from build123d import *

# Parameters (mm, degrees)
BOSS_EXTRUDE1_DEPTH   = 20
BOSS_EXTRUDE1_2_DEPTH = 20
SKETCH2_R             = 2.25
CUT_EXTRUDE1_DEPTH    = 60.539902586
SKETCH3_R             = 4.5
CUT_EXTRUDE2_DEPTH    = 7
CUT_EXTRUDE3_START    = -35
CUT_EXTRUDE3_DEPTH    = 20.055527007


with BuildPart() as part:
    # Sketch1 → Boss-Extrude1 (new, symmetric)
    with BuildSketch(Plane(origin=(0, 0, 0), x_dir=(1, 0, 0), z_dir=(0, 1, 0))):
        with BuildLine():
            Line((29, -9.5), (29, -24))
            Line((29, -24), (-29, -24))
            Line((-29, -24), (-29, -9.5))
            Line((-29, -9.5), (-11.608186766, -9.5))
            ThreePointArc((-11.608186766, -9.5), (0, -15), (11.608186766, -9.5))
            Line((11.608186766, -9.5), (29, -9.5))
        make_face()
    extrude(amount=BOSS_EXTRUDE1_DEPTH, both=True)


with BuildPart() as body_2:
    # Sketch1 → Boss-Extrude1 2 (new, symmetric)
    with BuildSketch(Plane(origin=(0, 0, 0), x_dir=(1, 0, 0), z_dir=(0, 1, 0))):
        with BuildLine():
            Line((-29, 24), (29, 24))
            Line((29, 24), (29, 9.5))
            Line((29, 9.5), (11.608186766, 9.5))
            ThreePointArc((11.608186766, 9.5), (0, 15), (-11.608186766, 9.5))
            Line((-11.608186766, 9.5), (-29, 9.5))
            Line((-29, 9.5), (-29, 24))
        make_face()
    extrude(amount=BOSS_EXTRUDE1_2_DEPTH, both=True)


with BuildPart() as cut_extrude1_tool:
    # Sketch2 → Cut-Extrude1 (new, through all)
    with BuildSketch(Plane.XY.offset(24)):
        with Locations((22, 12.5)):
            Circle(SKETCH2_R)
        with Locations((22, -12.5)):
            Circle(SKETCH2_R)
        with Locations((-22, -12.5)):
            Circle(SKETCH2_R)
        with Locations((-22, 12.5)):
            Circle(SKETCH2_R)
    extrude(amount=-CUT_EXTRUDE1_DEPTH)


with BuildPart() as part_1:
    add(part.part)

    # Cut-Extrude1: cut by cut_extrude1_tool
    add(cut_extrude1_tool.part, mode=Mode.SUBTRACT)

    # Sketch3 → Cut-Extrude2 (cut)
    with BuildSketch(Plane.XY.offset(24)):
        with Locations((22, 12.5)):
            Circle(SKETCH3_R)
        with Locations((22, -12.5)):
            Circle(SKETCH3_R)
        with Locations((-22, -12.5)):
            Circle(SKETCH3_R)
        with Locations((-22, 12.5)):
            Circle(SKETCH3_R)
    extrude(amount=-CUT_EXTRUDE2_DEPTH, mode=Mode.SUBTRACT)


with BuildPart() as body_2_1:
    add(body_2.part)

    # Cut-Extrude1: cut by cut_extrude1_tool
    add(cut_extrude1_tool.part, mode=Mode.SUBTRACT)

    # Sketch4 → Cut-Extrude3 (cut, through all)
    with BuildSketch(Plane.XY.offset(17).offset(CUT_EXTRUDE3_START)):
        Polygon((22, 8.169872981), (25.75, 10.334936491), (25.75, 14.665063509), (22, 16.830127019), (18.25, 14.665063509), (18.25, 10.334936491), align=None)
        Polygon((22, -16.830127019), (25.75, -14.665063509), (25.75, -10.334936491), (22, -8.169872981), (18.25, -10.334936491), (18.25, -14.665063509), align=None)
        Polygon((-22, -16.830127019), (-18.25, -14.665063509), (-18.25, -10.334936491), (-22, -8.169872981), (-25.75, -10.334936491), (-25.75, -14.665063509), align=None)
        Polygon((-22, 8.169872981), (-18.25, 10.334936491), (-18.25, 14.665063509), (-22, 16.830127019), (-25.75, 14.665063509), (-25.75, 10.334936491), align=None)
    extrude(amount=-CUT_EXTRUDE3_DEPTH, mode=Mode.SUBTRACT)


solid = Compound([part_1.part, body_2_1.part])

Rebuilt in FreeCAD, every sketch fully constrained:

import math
import FreeCAD as App
import Part
import Sketcher

V = App.Vector
Q = App.Units.Quantity

doc = App.newDocument("Part")
params = doc.addObject("Spreadsheet::Sheet", "Params")
for row, (alias, value) in enumerate([
    ("sketch1_radius", "15 mm"),
    ("sketch1_width", "58 mm"),
    ("sketch1_height", "14.5 mm"),
    ("pad1_length", "40 mm"),
    ("sketch2_radius", "15 mm"),
    ("sketch2_width", "58 mm"),
    ("sketch2_height", "14.5 mm"),
    ("pad2_length", "40 mm"),
    ("sketch3_diameter", "4.5 mm"),
    ("pad3_length", "60.539903 mm"),
    ("sketch4_diameter", "9 mm"),
    ("pocket1_length", "7 mm"),
], start=1):
    params.set(f"A{row}", alias)
    params.set(f"B{row}", "=" + value)
    params.setAlias(f"B{row}", alias)

body = doc.addObject("PartDesign::Body", "Body")

# Sketch on XZ plane
sketch1 = body.newObject("Sketcher::SketchObject", "Sketch")
sketch1.AttachmentSupport = (doc.getObject("XZ_Plane"), [""])
sketch1.MapMode = "FlatFace"
sketch1.addGeometry(Part.LineSegment(V(29, 24, 0), V(29, 10, 0)), False)
sketch1.addGeometry(Part.LineSegment(V(29, 10, 0), V(12, 10, 0)), False)
sketch1.addGeometry(Part.ArcOfCircle(Part.Circle(V(0, 0, 0), V(0, 0, 1), 15), math.radians(39), math.radians(141)), False)
sketch1.addGeometry(Part.LineSegment(V(-12, 10, 0), V(-29, 10, 0)), False)
sketch1.addGeometry(Part.LineSegment(V(-29, 10, 0), V(-29, 24, 0)), False)
sketch1.addGeometry(Part.LineSegment(V(-29, 24, 0), V(29, 24, 0)), False)
sketch1.addConstraint(Sketcher.Constraint("Coincident", 0, 2, 1, 1))
sketch1.addConstraint(Sketcher.Constraint("Coincident", 1, 2, 2, 1))
sketch1.addConstraint(Sketcher.Constraint("Coincident", 2, 2, 3, 1))
sketch1.addConstraint(Sketcher.Constraint("Coincident", 3, 2, 4, 1))
sketch1.addConstraint(Sketcher.Constraint("Coincident", 4, 2, 5, 1))
sketch1.addConstraint(Sketcher.Constraint("Coincident", 5, 2, 0, 1))
sketch1.addConstraint(Sketcher.Constraint("Vertical", 0))
sketch1.addConstraint(Sketcher.Constraint("Horizontal", 1))
sketch1.addConstraint(Sketcher.Constraint("Horizontal", 3))
sketch1.addConstraint(Sketcher.Constraint("Vertical", 4))
sketch1.addConstraint(Sketcher.Constraint("Horizontal", 5))
sketch1.addConstraint(Sketcher.Constraint("Coincident", 2, 3, -1, 1))
sketch1.addConstraint(Sketcher.Constraint("Symmetric", 0, 2, 3, 2, -2))
sketch1.addConstraint(Sketcher.Constraint("Radius", 2, Q("15 mm")))
sketch1.addConstraint(Sketcher.Constraint("DistanceX", 5, 1, 5, 2, Q("58 mm")))
sketch1.addConstraint(Sketcher.Constraint("DistanceY", 0, 2, 0, 1, Q("14.5 mm")))
sketch1.addConstraint(Sketcher.Constraint("DistanceY", -1, 1, 4, 2, Q("24 mm")))
sketch1.setExpression("Constraints[13]", "Params.sketch1_radius")
sketch1.setExpression("Constraints[14]", "Params.sketch1_width")
sketch1.setExpression("Constraints[15]", "Params.sketch1_height")
pad1 = body.newObject("PartDesign::Pad", "Pad")
pad1.Profile = sketch1
pad1.setExpression("Length", "Params.pad1_length")
pad1.Midplane = True
body2 = doc.addObject("PartDesign::Body", "Body001")

# Sketch on XZ plane
sketch2 = body2.newObject("Sketcher::SketchObject", "Sketch001")
sketch2.AttachmentSupport = (doc.getObject("XZ_Plane001"), [""])
sketch2.MapMode = "FlatFace"
sketch2.addGeometry(Part.LineSegment(V(29, -24, 0), V(-29, -24, 0)), False)
sketch2.addGeometry(Part.LineSegment(V(-29, -24, 0), V(-29, -10, 0)), False)
sketch2.addGeometry(Part.LineSegment(V(-29, -10, 0), V(-12, -10, 0)), False)
sketch2.addGeometry(Part.ArcOfCircle(Part.Circle(V(0, 0, 0), V(0, 0, 1), 15), math.radians(-141), math.radians(-39)), False)
sketch2.addGeometry(Part.LineSegment(V(12, -10, 0), V(29, -10, 0)), False)
sketch2.addGeometry(Part.LineSegment(V(29, -10, 0), V(29, -24, 0)), False)
sketch2.addConstraint(Sketcher.Constraint("Coincident", 0, 2, 1, 1))
sketch2.addConstraint(Sketcher.Constraint("Coincident", 1, 2, 2, 1))
sketch2.addConstraint(Sketcher.Constraint("Coincident", 2, 2, 3, 1))
sketch2.addConstraint(Sketcher.Constraint("Coincident", 3, 2, 4, 1))
sketch2.addConstraint(Sketcher.Constraint("Coincident", 4, 2, 5, 1))
sketch2.addConstraint(Sketcher.Constraint("Coincident", 5, 2, 0, 1))
sketch2.addConstraint(Sketcher.Constraint("Horizontal", 0))
sketch2.addConstraint(Sketcher.Constraint("Vertical", 1))
sketch2.addConstraint(Sketcher.Constraint("Horizontal", 2))
sketch2.addConstraint(Sketcher.Constraint("Horizontal", 4))
sketch2.addConstraint(Sketcher.Constraint("Vertical", 5))
sketch2.addConstraint(Sketcher.Constraint("Coincident", 3, 3, -1, 1))
sketch2.addConstraint(Sketcher.Constraint("Symmetric", 1, 2, 4, 2, -2))
sketch2.addConstraint(Sketcher.Constraint("Radius", 3, Q("15 mm")))
sketch2.addConstraint(Sketcher.Constraint("DistanceX", 0, 2, 0, 1, Q("58 mm")))
sketch2.addConstraint(Sketcher.Constraint("DistanceY", 1, 1, 1, 2, Q("14.5 mm")))
sketch2.addConstraint(Sketcher.Constraint("DistanceY", 0, 2, -1, 1, Q("24 mm")))
sketch2.setExpression("Constraints[13]", "Params.sketch2_radius")
sketch2.setExpression("Constraints[14]", "Params.sketch2_width")
sketch2.setExpression("Constraints[15]", "Params.sketch2_height")
pad2 = body2.newObject("PartDesign::Pad", "Pad001")
pad2.Profile = sketch2
pad2.setExpression("Length", "Params.pad2_length")
pad2.Midplane = True
body3 = doc.addObject("PartDesign::Body", "Body002")
body3.AllowCompound = True

# Sketch on XY plane
sketch3 = body3.newObject("Sketcher::SketchObject", "Sketch002")
sketch3.AttachmentSupport = (doc.getObject("XY_Plane002"), [""])
sketch3.MapMode = "FlatFace"
sketch3.AttachmentOffset = App.Placement(V(0, 0, 24), App.Rotation())
sketch3.addGeometry(Part.Circle(V(22, 12.5, 0), V(0, 0, 1), 2.2), False)
sketch3.addGeometry(Part.Circle(V(22, -12.5, 0), V(0, 0, 1), 2.2), False)
sketch3.addGeometry(Part.Circle(V(-22, -12.5, 0), V(0, 0, 1), 2.2), False)
sketch3.addGeometry(Part.Circle(V(-22, 12.5, 0), V(0, 0, 1), 2.2), False)
sketch3.addConstraint(Sketcher.Constraint("Equal", 0, 1))
sketch3.addConstraint(Sketcher.Constraint("Equal", 1, 2))
sketch3.addConstraint(Sketcher.Constraint("Equal", 2, 3))
sketch3.addConstraint(Sketcher.Constraint("Symmetric", 0, 3, 2, 3, -1, 1))
sketch3.addConstraint(Sketcher.Constraint("Symmetric", 1, 3, 3, 3, -1, 1))
sketch3.addConstraint(Sketcher.Constraint("Symmetric", 1, 3, 2, 3, -2))
sketch3.addConstraint(Sketcher.Constraint("Diameter", 0, Q("4.5 mm")))
sketch3.addConstraint(Sketcher.Constraint("DistanceX", -1, 1, 0, 3, Q("22 mm")))
sketch3.addConstraint(Sketcher.Constraint("DistanceY", 1, 3, 0, 3, Q("25 mm")))
sketch3.setExpression("Constraints[6]", "Params.sketch3_diameter")
pad3 = body3.newObject("PartDesign::Pad", "Pad002")
pad3.Profile = sketch3
pad3.setExpression("Length", "Params.pad3_length")
pad3.Reversed = True
doc.recompute()

body4 = doc.addObject("PartDesign::Body", "Body003")
body4.BaseFeature = body3
boolean = body.newObject("PartDesign::Boolean", "Boolean")
boolean.Type = "Cut"
boolean.addObjects([body4])
doc.recompute()

# Sketch on XY plane
sketch4 = body.newObject("Sketcher::SketchObject", "Sketch003")
sketch4.AttachmentSupport = (doc.getObject("XY_Plane"), [""])
sketch4.MapMode = "FlatFace"
sketch4.AttachmentOffset = App.Placement(V(0, 0, 24), App.Rotation())
sketch4.addGeometry(Part.Circle(V(22, 12.5, 0), V(0, 0, 1), 4.5), False)
sketch4.addGeometry(Part.Circle(V(22, -12.5, 0), V(0, 0, 1), 4.5), False)
sketch4.addGeometry(Part.Circle(V(-22, -12.5, 0), V(0, 0, 1), 4.5), False)
sketch4.addGeometry(Part.Circle(V(-22, 12.5, 0), V(0, 0, 1), 4.5), False)
sketch4.addConstraint(Sketcher.Constraint("Equal", 0, 1))
sketch4.addConstraint(Sketcher.Constraint("Equal", 1, 2))
sketch4.addConstraint(Sketcher.Constraint("Equal", 2, 3))
sketch4.addConstraint(Sketcher.Constraint("Symmetric", 0, 3, 2, 3, -1, 1))
sketch4.addConstraint(Sketcher.Constraint("Symmetric", 1, 3, 3, 3, -1, 1))
sketch4.addConstraint(Sketcher.Constraint("Symmetric", 1, 3, 2, 3, -2))
sketch4.addConstraint(Sketcher.Constraint("Diameter", 0, Q("9 mm")))
sketch4.addConstraint(Sketcher.Constraint("DistanceX", -1, 1, 0, 3, Q("22 mm")))
sketch4.addConstraint(Sketcher.Constraint("DistanceY", 1, 3, 0, 3, Q("25 mm")))
sketch4.setExpression("Constraints[6]", "Params.sketch4_diameter")
pocket1 = body.newObject("PartDesign::Pocket", "Pocket")
pocket1.Profile = sketch4
pocket1.setExpression("Length", "Params.pocket1_length")
doc.recompute()

boolean2 = body2.newObject("PartDesign::Boolean", "Boolean001")
boolean2.Type = "Cut"
boolean2.addObjects([body3])

# Sketch on XY plane
sketch5 = body2.newObject("Sketcher::SketchObject", "Sketch004")
sketch5.AttachmentSupport = (doc.getObject("XY_Plane001"), [""])
sketch5.MapMode = "FlatFace"
sketch5.AttachmentOffset = App.Placement(V(0, 0, -18), App.Rotation())
sketch5.addGeometry(Part.LineSegment(V(22, 8.2, 0), V(25.8, 10.3, 0)), False)
sketch5.addGeometry(Part.LineSegment(V(25.8, 10.3, 0), V(25.8, 14.7, 0)), False)
sketch5.addGeometry(Part.LineSegment(V(25.8, 14.7, 0), V(22, 16.8, 0)), False)
sketch5.addGeometry(Part.LineSegment(V(22, 16.8, 0), V(18.2, 14.7, 0)), False)
sketch5.addGeometry(Part.LineSegment(V(18.2, 14.7, 0), V(18.2, 10.3, 0)), False)
sketch5.addGeometry(Part.LineSegment(V(18.2, 10.3, 0), V(22, 8.2, 0)), False)
sketch5.addGeometry(Part.LineSegment(V(22, -16.8, 0), V(25.8, -14.7, 0)), False)
sketch5.addGeometry(Part.LineSegment(V(25.8, -14.7, 0), V(25.8, -10.3, 0)), False)
sketch5.addGeometry(Part.LineSegment(V(25.8, -10.3, 0), V(22, -8.2, 0)), False)
sketch5.addGeometry(Part.LineSegment(V(22, -8.2, 0), V(18.2, -10.3, 0)), False)
sketch5.addGeometry(Part.LineSegment(V(18.2, -10.3, 0), V(18.2, -14.7, 0)), False)
sketch5.addGeometry(Part.LineSegment(V(18.2, -14.7, 0), V(22, -16.8, 0)), False)
sketch5.addGeometry(Part.LineSegment(V(-22, -16.8, 0), V(-18.2, -14.7, 0)), False)
sketch5.addGeometry(Part.LineSegment(V(-18.2, -14.7, 0), V(-18.2, -10.3, 0)), False)
sketch5.addGeometry(Part.LineSegment(V(-18.2, -10.3, 0), V(-22, -8.2, 0)), False)
sketch5.addGeometry(Part.LineSegment(V(-22, -8.2, 0), V(-25.8, -10.3, 0)), False)
sketch5.addGeometry(Part.LineSegment(V(-25.8, -10.3, 0), V(-25.8, -14.7, 0)), False)
sketch5.addGeometry(Part.LineSegment(V(-25.8, -14.7, 0), V(-22, -16.8, 0)), False)
sketch5.addGeometry(Part.LineSegment(V(-22, 8.2, 0), V(-18.2, 10.3, 0)), False)
sketch5.addGeometry(Part.LineSegment(V(-18.2, 10.3, 0), V(-18.2, 14.7, 0)), False)
sketch5.addGeometry(Part.LineSegment(V(-18.2, 14.7, 0), V(-22, 16.8, 0)), False)
sketch5.addGeometry(Part.LineSegment(V(-22, 16.8, 0), V(-25.8, 14.7, 0)), False)
sketch5.addGeometry(Part.LineSegment(V(-25.8, 14.7, 0), V(-25.8, 10.3, 0)), False)
sketch5.addGeometry(Part.LineSegment(V(-25.8, 10.3, 0), V(-22, 8.2, 0)), False)
sketch5.addConstraint(Sketcher.Constraint("Coincident", 0, 2, 1, 1))
sketch5.addConstraint(Sketcher.Constraint("Coincident", 1, 2, 2, 1))
sketch5.addConstraint(Sketcher.Constraint("Coincident", 2, 2, 3, 1))
sketch5.addConstraint(Sketcher.Constraint("Coincident", 3, 2, 4, 1))
sketch5.addConstraint(Sketcher.Constraint("Coincident", 4, 2, 5, 1))
sketch5.addConstraint(Sketcher.Constraint("Coincident", 5, 2, 0, 1))
sketch5.addConstraint(Sketcher.Constraint("Coincident", 6, 2, 7, 1))
sketch5.addConstraint(Sketcher.Constraint("Coincident", 7, 2, 8, 1))
sketch5.addConstraint(Sketcher.Constraint("Coincident", 8, 2, 9, 1))
sketch5.addConstraint(Sketcher.Constraint("Coincident", 9, 2, 10, 1))
sketch5.addConstraint(Sketcher.Constraint("Coincident", 10, 2, 11, 1))
sketch5.addConstraint(Sketcher.Constraint("Coincident", 11, 2, 6, 1))
sketch5.addConstraint(Sketcher.Constraint("Coincident", 12, 2, 13, 1))
sketch5.addConstraint(Sketcher.Constraint("Coincident", 13, 2, 14, 1))
sketch5.addConstraint(Sketcher.Constraint("Coincident", 14, 2, 15, 1))
sketch5.addConstraint(Sketcher.Constraint("Coincident", 15, 2, 16, 1))
sketch5.addConstraint(Sketcher.Constraint("Coincident", 16, 2, 17, 1))
sketch5.addConstraint(Sketcher.Constraint("Coincident", 17, 2, 12, 1))
sketch5.addConstraint(Sketcher.Constraint("Coincident", 18, 2, 19, 1))
sketch5.addConstraint(Sketcher.Constraint("Coincident", 19, 2, 20, 1))
sketch5.addConstraint(Sketcher.Constraint("Coincident", 20, 2, 21, 1))
sketch5.addConstraint(Sketcher.Constraint("Coincident", 21, 2, 22, 1))
sketch5.addConstraint(Sketcher.Constraint("Coincident", 22, 2, 23, 1))
sketch5.addConstraint(Sketcher.Constraint("Coincident", 23, 2, 18, 1))
sketch5.addConstraint(Sketcher.Constraint("Vertical", 1))
sketch5.addConstraint(Sketcher.Constraint("Vertical", 4))
sketch5.addConstraint(Sketcher.Constraint("Vertical", 7))
sketch5.addConstraint(Sketcher.Constraint("Vertical", 10))
sketch5.addConstraint(Sketcher.Constraint("Vertical", 13))
sketch5.addConstraint(Sketcher.Constraint("Vertical", 16))
sketch5.addConstraint(Sketcher.Constraint("Vertical", 19))
sketch5.addConstraint(Sketcher.Constraint("Vertical", 22))
sketch5.addConstraint(Sketcher.Constraint("Symmetric", 3, 2, 12, 2, -1, 1))
sketch5.addConstraint(Sketcher.Constraint("Symmetric", 5, 2, 14, 2, -1, 1))
sketch5.addConstraint(Sketcher.Constraint("Symmetric", 0, 2, 15, 2, -1, 1))
sketch5.addConstraint(Sketcher.Constraint("Symmetric", 2, 2, 17, 2, -1, 1))
sketch5.addConstraint(Sketcher.Constraint("Symmetric", 9, 2, 18, 2, -1, 1))
sketch5.addConstraint(Sketcher.Constraint("Symmetric", 11, 2, 20, 2, -1, 1))
sketch5.addConstraint(Sketcher.Constraint("Symmetric", 6, 2, 21, 2, -1, 1))
sketch5.addConstraint(Sketcher.Constraint("Symmetric", 8, 2, 23, 2, -1, 1))
sketch5.addConstraint(Sketcher.Constraint("Symmetric", 10, 2, 12, 2, -2))
sketch5.addConstraint(Sketcher.Constraint("Symmetric", 8, 2, 14, 2, -2))
sketch5.addConstraint(Sketcher.Constraint("Symmetric", 7, 2, 15, 2, -2))
sketch5.addConstraint(Sketcher.Constraint("Symmetric", 11, 2, 17, 2, -2))
sketch5.addConstraint(Sketcher.Constraint("Parallel", 0, 3))
sketch5.addConstraint(Sketcher.Constraint("Parallel", 2, 5))
sketch5.addConstraint(Sketcher.Constraint("Parallel", 3, 6))
sketch5.addConstraint(Sketcher.Constraint("Parallel", 5, 8))
sketch5.addConstraint(Sketcher.Constraint("Parallel", 6, 9))
sketch5.addConstraint(Sketcher.Constraint("Parallel", 11, 14))
sketch5.addConstraint(Sketcher.Constraint("Parallel", 14, 17))
sketch5.addConstraint(Sketcher.Constraint("Parallel", 17, 20))
sketch5.addConstraint(Sketcher.Constraint("Parallel", 20, 23))
sketch5.addConstraint(Sketcher.Constraint("Horizontal", 1, 2, 3, 2))
sketch5.addConstraint(Sketcher.Constraint("Horizontal", 0, 2, 4, 2))
sketch5.addConstraint(Sketcher.Constraint("Angle", 0, Q("30 deg")))
sketch5.addConstraint(Sketcher.Constraint("DistanceX", -1, 1, 2, 2, Q("22 mm")))
sketch5.addConstraint(Sketcher.Constraint("DistanceY", 6, 2, 0, 2, Q("25 mm")))
sketch5.addConstraint(Sketcher.Constraint("DistanceX", 3, 2, 1, 2, Q("7.5 mm")))
sketch5.addConstraint(Sketcher.Constraint("DistanceY", 1, 1, 1, 2, Q("4.330127 mm")))
pocket2 = body2.newObject("PartDesign::Pocket", "Pocket001")
pocket2.Profile = sketch5
pocket2.Type = "ThroughAll"

doc.recompute()
